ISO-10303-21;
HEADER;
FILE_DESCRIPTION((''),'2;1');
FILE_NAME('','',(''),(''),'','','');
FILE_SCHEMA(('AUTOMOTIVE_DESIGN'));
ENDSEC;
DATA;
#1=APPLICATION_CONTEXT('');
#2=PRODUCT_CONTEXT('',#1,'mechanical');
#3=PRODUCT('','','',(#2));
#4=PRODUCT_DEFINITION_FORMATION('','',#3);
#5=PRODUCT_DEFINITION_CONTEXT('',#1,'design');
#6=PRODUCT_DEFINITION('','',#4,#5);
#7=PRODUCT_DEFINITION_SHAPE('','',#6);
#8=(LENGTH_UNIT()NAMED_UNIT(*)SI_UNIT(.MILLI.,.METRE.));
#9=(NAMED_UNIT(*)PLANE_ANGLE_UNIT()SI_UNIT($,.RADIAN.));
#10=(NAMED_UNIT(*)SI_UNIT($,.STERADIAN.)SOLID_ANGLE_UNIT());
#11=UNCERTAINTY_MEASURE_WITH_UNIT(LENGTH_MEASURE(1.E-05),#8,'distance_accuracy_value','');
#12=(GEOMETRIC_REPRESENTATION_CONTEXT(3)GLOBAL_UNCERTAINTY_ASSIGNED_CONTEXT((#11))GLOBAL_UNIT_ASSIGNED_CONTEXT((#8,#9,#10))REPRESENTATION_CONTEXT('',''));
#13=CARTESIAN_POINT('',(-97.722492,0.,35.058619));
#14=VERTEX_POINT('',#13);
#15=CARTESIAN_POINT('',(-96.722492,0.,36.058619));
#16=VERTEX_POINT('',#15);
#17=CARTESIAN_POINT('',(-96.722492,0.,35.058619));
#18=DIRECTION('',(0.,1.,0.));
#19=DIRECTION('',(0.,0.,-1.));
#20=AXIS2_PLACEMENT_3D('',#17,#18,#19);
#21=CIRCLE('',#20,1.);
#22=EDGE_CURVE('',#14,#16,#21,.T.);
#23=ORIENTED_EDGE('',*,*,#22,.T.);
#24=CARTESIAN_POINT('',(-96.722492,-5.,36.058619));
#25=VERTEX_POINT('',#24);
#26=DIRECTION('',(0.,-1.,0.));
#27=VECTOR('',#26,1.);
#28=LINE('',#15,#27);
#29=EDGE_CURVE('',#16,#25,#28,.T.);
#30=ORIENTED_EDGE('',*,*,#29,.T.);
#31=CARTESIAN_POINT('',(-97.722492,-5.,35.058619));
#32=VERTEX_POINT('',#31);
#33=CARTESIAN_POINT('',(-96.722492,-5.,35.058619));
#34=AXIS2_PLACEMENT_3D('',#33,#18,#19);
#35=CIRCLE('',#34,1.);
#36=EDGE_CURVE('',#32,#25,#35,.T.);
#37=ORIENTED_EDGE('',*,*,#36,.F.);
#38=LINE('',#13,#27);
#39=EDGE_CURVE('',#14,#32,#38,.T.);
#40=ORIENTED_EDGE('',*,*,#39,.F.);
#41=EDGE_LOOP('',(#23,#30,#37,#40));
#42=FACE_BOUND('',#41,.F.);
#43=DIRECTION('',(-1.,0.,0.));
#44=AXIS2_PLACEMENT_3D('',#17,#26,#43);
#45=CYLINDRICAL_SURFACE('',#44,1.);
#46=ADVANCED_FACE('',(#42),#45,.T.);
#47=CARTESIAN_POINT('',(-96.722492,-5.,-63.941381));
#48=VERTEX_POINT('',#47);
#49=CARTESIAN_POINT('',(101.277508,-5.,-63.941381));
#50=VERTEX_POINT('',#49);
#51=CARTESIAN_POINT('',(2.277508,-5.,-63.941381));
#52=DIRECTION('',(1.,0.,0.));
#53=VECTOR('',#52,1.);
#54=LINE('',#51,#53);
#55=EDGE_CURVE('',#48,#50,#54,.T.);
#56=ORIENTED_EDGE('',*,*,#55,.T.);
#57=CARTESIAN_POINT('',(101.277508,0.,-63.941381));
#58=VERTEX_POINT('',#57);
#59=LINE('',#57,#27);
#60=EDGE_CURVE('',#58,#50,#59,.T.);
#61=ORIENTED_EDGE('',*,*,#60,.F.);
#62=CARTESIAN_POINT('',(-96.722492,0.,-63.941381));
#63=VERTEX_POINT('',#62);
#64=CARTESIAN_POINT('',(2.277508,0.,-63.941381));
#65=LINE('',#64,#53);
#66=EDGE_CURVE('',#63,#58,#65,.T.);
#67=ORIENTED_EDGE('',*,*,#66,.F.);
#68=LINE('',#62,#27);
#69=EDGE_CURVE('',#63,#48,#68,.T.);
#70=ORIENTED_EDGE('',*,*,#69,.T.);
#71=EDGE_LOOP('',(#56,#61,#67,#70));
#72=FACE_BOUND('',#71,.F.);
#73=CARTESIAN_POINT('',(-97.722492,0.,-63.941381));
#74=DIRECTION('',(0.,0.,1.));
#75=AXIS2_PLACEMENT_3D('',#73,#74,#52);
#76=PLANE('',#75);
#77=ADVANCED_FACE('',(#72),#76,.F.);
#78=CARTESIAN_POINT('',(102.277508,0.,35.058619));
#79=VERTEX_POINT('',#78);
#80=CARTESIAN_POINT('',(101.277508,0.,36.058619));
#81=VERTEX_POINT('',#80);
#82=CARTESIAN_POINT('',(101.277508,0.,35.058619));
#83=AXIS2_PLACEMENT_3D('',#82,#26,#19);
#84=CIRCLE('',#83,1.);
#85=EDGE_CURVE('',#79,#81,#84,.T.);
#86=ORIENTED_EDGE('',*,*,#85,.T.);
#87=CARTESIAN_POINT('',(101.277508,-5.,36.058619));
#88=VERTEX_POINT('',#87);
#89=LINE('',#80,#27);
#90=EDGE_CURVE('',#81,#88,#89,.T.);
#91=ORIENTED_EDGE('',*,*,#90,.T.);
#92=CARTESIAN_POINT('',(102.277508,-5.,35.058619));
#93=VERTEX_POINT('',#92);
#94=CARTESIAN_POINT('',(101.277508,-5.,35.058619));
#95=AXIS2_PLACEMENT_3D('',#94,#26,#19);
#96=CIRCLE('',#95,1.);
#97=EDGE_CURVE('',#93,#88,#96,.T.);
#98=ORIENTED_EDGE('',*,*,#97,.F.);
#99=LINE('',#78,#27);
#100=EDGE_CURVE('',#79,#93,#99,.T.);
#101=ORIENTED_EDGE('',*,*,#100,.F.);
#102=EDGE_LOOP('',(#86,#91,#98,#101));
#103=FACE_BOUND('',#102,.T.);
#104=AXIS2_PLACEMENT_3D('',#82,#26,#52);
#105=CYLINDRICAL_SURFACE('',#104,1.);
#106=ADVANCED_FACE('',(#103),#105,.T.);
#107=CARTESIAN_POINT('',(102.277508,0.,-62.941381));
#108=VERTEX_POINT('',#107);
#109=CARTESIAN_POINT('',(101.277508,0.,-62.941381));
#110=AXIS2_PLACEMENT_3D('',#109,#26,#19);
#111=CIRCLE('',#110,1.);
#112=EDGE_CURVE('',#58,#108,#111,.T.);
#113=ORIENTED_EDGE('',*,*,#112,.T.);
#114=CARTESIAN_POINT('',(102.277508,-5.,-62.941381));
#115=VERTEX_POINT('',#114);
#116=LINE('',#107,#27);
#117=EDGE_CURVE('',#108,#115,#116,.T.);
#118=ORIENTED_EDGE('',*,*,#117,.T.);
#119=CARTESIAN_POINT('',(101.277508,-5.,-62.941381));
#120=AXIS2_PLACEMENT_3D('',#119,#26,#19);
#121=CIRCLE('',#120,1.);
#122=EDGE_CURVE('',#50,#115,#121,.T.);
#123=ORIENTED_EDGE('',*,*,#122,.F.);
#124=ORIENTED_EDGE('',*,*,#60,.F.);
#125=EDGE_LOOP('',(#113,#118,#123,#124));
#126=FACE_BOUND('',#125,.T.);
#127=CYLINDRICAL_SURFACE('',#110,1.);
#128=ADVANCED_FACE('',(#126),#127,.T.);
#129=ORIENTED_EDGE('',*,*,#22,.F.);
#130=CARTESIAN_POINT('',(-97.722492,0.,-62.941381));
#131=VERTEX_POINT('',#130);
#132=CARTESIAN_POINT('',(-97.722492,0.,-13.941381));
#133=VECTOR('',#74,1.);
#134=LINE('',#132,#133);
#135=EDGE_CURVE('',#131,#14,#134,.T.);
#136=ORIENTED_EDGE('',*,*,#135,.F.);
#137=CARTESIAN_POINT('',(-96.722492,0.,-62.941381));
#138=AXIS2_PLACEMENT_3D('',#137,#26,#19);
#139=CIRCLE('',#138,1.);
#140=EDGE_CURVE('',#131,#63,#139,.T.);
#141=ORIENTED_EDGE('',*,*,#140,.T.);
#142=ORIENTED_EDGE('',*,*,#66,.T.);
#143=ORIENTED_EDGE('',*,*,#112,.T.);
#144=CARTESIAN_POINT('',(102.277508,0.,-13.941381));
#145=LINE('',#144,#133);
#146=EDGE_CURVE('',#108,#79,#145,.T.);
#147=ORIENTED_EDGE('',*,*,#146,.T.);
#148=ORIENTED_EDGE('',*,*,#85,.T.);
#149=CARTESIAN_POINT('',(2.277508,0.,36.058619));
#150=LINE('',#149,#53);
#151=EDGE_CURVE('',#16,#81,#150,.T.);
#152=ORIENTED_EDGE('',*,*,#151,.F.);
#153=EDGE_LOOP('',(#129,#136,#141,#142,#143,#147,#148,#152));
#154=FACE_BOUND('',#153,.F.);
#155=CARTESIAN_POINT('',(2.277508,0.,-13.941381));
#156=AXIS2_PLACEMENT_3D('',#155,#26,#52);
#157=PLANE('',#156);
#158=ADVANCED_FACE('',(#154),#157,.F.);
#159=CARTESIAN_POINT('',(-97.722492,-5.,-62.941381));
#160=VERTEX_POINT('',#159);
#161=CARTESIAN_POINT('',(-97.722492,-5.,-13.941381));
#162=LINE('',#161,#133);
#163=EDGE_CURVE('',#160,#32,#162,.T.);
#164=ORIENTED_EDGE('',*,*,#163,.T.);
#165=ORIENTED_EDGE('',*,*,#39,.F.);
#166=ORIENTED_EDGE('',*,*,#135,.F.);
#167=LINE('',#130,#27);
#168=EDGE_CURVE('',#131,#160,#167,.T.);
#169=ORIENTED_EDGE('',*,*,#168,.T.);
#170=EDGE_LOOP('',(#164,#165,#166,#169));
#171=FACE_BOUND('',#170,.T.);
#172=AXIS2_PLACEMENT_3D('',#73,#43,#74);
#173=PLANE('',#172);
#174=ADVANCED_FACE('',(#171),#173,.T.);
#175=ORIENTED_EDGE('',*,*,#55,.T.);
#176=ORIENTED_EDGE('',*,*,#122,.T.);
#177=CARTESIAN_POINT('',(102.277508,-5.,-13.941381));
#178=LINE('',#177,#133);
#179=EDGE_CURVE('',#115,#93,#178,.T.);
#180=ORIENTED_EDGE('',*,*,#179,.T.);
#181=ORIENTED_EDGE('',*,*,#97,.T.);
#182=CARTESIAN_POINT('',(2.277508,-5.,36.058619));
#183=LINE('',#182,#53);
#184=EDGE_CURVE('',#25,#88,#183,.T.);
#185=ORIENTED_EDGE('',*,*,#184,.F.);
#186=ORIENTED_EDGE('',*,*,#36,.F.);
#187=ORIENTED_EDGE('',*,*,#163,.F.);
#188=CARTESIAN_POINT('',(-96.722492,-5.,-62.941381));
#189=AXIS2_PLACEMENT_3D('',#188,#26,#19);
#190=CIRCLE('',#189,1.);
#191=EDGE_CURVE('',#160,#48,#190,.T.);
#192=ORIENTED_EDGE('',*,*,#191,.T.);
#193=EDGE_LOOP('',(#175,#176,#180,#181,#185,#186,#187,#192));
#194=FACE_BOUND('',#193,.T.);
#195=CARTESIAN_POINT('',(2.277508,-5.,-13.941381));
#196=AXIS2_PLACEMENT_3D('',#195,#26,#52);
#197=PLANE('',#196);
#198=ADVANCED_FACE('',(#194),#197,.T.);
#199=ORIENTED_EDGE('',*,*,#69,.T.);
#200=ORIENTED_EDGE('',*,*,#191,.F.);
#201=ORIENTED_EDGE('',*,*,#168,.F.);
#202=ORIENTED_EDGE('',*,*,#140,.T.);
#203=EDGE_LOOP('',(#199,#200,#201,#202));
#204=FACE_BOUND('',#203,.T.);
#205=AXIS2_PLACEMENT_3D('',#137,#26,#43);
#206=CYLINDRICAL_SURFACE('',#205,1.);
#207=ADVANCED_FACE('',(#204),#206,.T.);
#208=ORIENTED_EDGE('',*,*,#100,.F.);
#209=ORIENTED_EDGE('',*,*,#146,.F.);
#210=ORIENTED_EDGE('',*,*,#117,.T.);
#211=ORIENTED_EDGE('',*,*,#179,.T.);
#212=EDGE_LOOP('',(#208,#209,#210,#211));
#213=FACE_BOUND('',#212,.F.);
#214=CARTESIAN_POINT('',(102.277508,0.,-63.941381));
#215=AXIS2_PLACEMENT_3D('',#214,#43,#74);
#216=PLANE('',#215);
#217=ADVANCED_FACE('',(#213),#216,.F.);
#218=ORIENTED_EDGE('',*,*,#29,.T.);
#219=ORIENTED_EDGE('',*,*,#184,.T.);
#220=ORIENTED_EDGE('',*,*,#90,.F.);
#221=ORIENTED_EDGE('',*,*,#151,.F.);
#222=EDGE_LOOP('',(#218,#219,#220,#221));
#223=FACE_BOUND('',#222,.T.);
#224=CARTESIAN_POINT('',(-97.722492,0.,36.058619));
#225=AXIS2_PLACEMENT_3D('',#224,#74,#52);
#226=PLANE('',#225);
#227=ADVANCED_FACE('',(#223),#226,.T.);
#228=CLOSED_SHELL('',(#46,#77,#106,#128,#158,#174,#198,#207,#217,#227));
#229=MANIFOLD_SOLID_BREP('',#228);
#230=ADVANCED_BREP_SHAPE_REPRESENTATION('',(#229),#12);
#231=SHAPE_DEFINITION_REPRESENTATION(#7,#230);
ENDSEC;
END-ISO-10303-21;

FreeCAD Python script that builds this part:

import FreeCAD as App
import Part
import Sketcher
from FreeCAD import Vector
Q = App.Units.Quantity


def edges_at(feature, points):
    """Names of the edges that pass closest to the given points."""
    edges = feature.Shape.Edges
    near = lambda p: min(range(len(edges)), key=lambda i: edges[i].distToShape(Part.Vertex(*p))[0])
    return sorted({f"Edge{near(p) + 1}" for p in points})


def add_polygon(sketch, points):
    """Adds a closed chain of lines whose ends are joined by coincident constraints."""
    first, n = sketch.GeometryCount, len(points)
    for a, b in zip(points, points[1:] + points[:1]):
        sketch.addGeometry(Part.LineSegment(App.Vector(*a, 0), App.Vector(*b, 0)), False)
    for i in range(n):
        sketch.addConstraint(Sketcher.Constraint("Coincident", first + i, 2, first + (i + 1) % n, 1))

doc = App.newDocument("Part")
body = doc.addObject("PartDesign::Body", "Body")

# Sketch on XZ plane
sketch1 = body.newObject("Sketcher::SketchObject", "Sketch")
sketch1.AttachmentSupport = (doc.getObject("XZ_Plane"), [""])
sketch1.MapMode = "FlatFace"
add_polygon(sketch1, [(-98, 36), (-98, -64), (102, -64), (102, 36)])  # lines 0-3
sketch1.addConstraint([
    Sketcher.Constraint("Vertical", 0),
    Sketcher.Constraint("Horizontal", 1),
    Sketcher.Constraint("Vertical", 2),
    Sketcher.Constraint("Horizontal", 3),
    Sketcher.Constraint("DistanceX", 1, 1, 1, 2, Q("200 mm")),
    Sketcher.Constraint("DistanceY", 0, 2, 0, 1, Q("100 mm")),
    Sketcher.Constraint("DistanceY", 0, 2, -1, 1, Q("63.941381 mm")),
    Sketcher.Constraint("DistanceX", 0, 2, -1, 1, Q("97.722492 mm")),
])
pad1 = body.newObject("PartDesign::Pad", "Pad")
pad1.Profile = sketch1
pad1.Length = 5
doc.recompute()

fillet = body.newObject("PartDesign::Fillet", "Fillet")
fillet.Base = (pad1, edges_at(pad1, [
    (-97.722, -2.5, 36.059),
    (-97.722, -2.5, -63.941),
    (102.278, -2.5, -63.941),
    (102.278, -2.5, 36.059),
]))
fillet.Radius = 1

doc.recompute()
